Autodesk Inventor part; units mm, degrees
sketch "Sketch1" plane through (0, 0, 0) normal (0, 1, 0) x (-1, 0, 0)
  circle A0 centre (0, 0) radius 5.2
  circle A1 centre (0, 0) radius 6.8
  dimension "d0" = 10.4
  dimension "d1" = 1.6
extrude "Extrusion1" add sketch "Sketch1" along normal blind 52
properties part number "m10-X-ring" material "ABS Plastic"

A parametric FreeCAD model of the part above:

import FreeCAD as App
import Part
import Sketcher

V = App.Vector

doc = App.newDocument("Part")
body = doc.addObject("PartDesign::Body", "Body")

# Sketch on XZ plane
sketch1 = body.newObject("Sketcher::SketchObject", "Sketch")
sketch1.AttachmentSupport = (doc.getObject("XZ_Plane"), [""])
sketch1.MapMode = "FlatFace"
sketch1.addGeometry(Part.Circle(V(0, 0, 0), V(0, 0, 1), 7), False)
sketch1.addGeometry(Part.Circle(V(0, 0, 0), V(0, 0, 1), 5), False)
sketch1.addConstraint(Sketcher.Constraint("Coincident", 0, 3, -1, 1))
sketch1.addConstraint(Sketcher.Constraint("Coincident", 1, 3, -1, 1))
sketch1.addConstraint(Sketcher.Constraint("Diameter", 1, 10.4))
sketch1.addConstraint(Sketcher.Constraint("Diameter", 0, 13.6))
pad1 = body.newObject("PartDesign::Pad", "Pad")
pad1.Profile = sketch1
pad1.Length = 52
pad1.Reversed = True

doc.recompute()
